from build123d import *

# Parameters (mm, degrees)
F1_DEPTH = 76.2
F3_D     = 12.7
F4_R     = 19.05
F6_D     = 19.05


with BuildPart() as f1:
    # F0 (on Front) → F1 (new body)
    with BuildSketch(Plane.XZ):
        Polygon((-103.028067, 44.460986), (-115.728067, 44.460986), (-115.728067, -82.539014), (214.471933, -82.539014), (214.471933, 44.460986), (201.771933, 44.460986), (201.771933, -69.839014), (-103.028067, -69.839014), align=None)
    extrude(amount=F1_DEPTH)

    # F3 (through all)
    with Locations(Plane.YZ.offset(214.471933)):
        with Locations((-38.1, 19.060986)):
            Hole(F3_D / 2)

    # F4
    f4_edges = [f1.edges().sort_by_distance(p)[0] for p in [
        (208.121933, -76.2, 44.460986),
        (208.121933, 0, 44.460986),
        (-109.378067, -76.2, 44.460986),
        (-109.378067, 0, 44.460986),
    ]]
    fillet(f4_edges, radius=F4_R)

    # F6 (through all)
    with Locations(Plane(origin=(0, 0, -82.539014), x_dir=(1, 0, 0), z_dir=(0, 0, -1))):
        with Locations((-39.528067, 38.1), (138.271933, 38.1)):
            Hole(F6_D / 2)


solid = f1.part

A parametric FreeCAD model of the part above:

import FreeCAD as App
import Part
import Sketcher
from FreeCAD import Vector
Q = App.Units.Quantity


def edges_at(feature, points):
    """Names of the edges that pass closest to the given points."""
    edges = feature.Shape.Edges
    near = lambda p: min(range(len(edges)), key=lambda i: edges[i].distToShape(Part.Vertex(*p))[0])
    return sorted({f"Edge{near(p) + 1}" for p in points})

doc = App.newDocument("Part")
body = doc.addObject("PartDesign::Body", "Body")

sketch1 = doc.addObject("Sketcher::SketchObject", "Sketch")
body.addObject(sketch1)
sketch1.AttachmentSupport = (doc.XZ_Plane, [""])
sketch1.MapMode = "FlatFace"
sketch1.addGeometry([
    Part.LineSegment(Vector(-103.028067, 44.460986, 0), Vector(-115.728067, 44.460986, 0)),
    Part.LineSegment(Vector(-115.728067, 44.460986, 0), Vector(-115.728067, -82.539014, 0)),
    Part.LineSegment(Vector(-115.728067, -82.539014, 0), Vector(214.471933, -82.539014, 0)),
    Part.LineSegment(Vector(214.471933, -82.539014, 0), Vector(214.471933, 44.460986, 0)),
    Part.LineSegment(Vector(214.471933, 44.460986, 0), Vector(201.771933, 44.460986, 0)),
    Part.LineSegment(Vector(201.771933, 44.460986, 0), Vector(201.771933, -69.839014, 0)),
    Part.LineSegment(Vector(201.771933, -69.839014, 0), Vector(-103.028067, -69.839014, 0)),
    Part.LineSegment(Vector(-103.028067, -69.839014, 0), Vector(-103.028067, 44.460986, 0)),
], False)
sketch1.addConstraint([
    Sketcher.Constraint("Coincident", 0, 2, 1, 1),
    Sketcher.Constraint("Coincident", 1, 2, 2, 1),
    Sketcher.Constraint("Coincident", 2, 2, 3, 1),
    Sketcher.Constraint("Coincident", 3, 2, 4, 1),
    Sketcher.Constraint("Coincident", 4, 2, 5, 1),
    Sketcher.Constraint("Coincident", 5, 2, 6, 1),
    Sketcher.Constraint("Coincident", 6, 2, 7, 1),
    Sketcher.Constraint("Coincident", 7, 2, 0, 1),
    Sketcher.Constraint("Horizontal", 0),
    Sketcher.Constraint("Vertical", 1),
    Sketcher.Constraint("Horizontal", 2),
    Sketcher.Constraint("Vertical", 3),
    Sketcher.Constraint("Horizontal", 4),
    Sketcher.Constraint("Vertical", 5),
    Sketcher.Constraint("Horizontal", 6),
    Sketcher.Constraint("Vertical", 7),
    Sketcher.Constraint("Horizontal", 0, 2, 3, 2),
    Sketcher.Constraint("Equal", 0, 4),
    Sketcher.Constraint("DistanceX", 2, 1, 2, 2, Q("13 in")),
    Sketcher.Constraint("DistanceX", 6, 2, 6, 1, Q("12 in")),
    Sketcher.Constraint("DistanceY", 1, 2, 1, 1, Q("5 in")),
    Sketcher.Constraint("DistanceY", 5, 2, 5, 1, Q("4.5 in")),
    Sketcher.Constraint("DistanceX", 0, 2, -1, 1, Q("115.728067 mm")),
    Sketcher.Constraint("DistanceY", -1, 1, 0, 2, Q("44.460986 mm")),
])
pad1 = doc.addObject("PartDesign::Pad", "Pad")
body.addObject(pad1)
pad1.Profile = sketch1
pad1.Length = Q("3 in")

sketch2 = doc.addObject("Sketcher::SketchObject", "Sketch001")
body.addObject(sketch2)
sketch2.AttachmentSupport = (doc.YZ_Plane, [""])
sketch2.MapMode = "FlatFace"
sketch2.AttachmentOffset = App.Placement(Vector(0, 0, 214.471933), App.Rotation())
sketch2.addGeometry(Part.Circle(Vector(-38.1, 19.060986, 0), Vector(0, 0, 1), 6.35), False)
sketch2.addConstraint([
    Sketcher.Constraint("Diameter", 0, Q("0.5 in")),
    Sketcher.Constraint("DistanceX", 0, 3, -1, 1, Q("1.5 in")),
    Sketcher.Constraint("DistanceY", -1, 1, 0, 3, Q("19.060986 mm")),
])
doc.recompute()
hole = doc.addObject("PartDesign::Hole", "Hole")
body.addObject(hole)
hole.Profile = sketch2
hole.ThreadType = "None"
hole.Diameter = Q("0.5 in")
hole.DepthType = "ThroughAll"
doc.recompute()

fillet = doc.addObject("PartDesign::Fillet", "Fillet")
body.addObject(fillet)
fillet.Base = (hole, edges_at(hole, [
    (208.122, -76.2, 44.461),
    (208.122, 0, 44.461),
    (-109.378, -76.2, 44.461),
    (-109.378, 0, 44.461),
]))
fillet.Radius = Q("0.75 in")

sketch3 = doc.addObject("Sketcher::SketchObject", "Sketch002")
body.addObject(sketch3)
sketch3.AttachmentSupport = (doc.XY_Plane, [""])
sketch3.MapMode = "FlatFace"
sketch3.AttachmentOffset = App.Placement(Vector(0, 0, -82.539014), App.Rotation())
sketch3.addGeometry([
    Part.Circle(Vector(-39.528067, -38.1, 0), Vector(0, 0, 1), 9.525),
    Part.Circle(Vector(138.271933, -38.1, 0), Vector(0, 0, 1), 9.525),
], False)
sketch3.addConstraint([
    Sketcher.Constraint("Equal", 0, 1),
    Sketcher.Constraint("Horizontal", 0, 3, 1, 3),
    Sketcher.Constraint("Diameter", 0, Q("0.75 in")),
    Sketcher.Constraint("DistanceX", 0, 3, 1, 3, Q("7 in")),
    Sketcher.Constraint("DistanceY", 0, 3, -1, 1, Q("1.5 in")),
    Sketcher.Constraint("DistanceX", 0, 3, -1, 1, Q("39.528067 mm")),
])
doc.recompute()
hole2 = doc.addObject("PartDesign::Hole", "Hole001")
body.addObject(hole2)
hole2.Profile = sketch3
hole2.ThreadType = "None"
hole2.Diameter = Q("0.75 in")
hole2.DepthType = "ThroughAll"
hole2.Reversed = True

doc.recompute()
